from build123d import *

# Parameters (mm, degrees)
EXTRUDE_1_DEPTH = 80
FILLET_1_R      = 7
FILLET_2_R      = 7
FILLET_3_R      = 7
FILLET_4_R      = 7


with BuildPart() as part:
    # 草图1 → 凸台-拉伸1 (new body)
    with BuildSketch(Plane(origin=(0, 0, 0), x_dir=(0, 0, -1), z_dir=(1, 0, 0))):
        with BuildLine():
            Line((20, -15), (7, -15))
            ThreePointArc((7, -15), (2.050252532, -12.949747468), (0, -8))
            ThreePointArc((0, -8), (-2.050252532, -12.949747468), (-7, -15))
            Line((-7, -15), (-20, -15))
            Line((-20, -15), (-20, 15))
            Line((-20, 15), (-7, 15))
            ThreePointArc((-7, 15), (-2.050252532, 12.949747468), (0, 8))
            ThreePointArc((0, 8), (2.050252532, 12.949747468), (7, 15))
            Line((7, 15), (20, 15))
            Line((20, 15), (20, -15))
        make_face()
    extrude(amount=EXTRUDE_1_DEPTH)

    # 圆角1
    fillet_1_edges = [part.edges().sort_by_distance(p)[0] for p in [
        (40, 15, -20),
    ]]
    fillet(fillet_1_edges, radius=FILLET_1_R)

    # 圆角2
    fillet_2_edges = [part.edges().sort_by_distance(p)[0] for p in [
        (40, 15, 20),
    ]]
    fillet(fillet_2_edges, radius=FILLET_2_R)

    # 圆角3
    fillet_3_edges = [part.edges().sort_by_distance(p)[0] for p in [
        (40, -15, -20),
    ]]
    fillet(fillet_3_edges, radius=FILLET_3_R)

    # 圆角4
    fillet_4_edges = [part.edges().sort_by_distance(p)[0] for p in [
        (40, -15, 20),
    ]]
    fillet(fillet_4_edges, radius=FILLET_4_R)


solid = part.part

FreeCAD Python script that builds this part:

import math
import FreeCAD as App
import Part
import Sketcher

V = App.Vector


def edges_at(feature, points):
    """Names of the edges that pass closest to the given points."""
    edges = feature.Shape.Edges
    near = lambda p: min(range(len(edges)), key=lambda i: edges[i].distToShape(Part.Vertex(*p))[0])
    return sorted({f"Edge{near(p) + 1}" for p in points})

doc = App.newDocument("Part")
body = doc.addObject("PartDesign::Body", "Body")

# Sketch on YZ plane
sketch1 = doc.addObject("Sketcher::SketchObject", "Sketch")
body.addObject(sketch1)
sketch1.AttachmentSupport = (doc.YZ_Plane, [""])
sketch1.MapMode = "FlatFace"
sketch1.addGeometry([
    Part.LineSegment(V(-15, -7, 0), V(-15, -20, 0)),  # 0
    Part.LineSegment(V(-15, -20, 0), V(15, -20, 0)),  # 1
    Part.LineSegment(V(15, -20, 0), V(15, -7, 0)),  # 2
    Part.ArcOfCircle(Part.Circle(V(8, -7, 0), V(0, 0, 1), 7), math.radians(0), math.radians(90)),  # 3
    Part.ArcOfCircle(Part.Circle(V(8, 7, 0), V(0, 0, 1), 7), math.radians(-90), math.radians(0)),  # 4
    Part.LineSegment(V(15, 7, 0), V(15, 20, 0)),  # 5
    Part.LineSegment(V(15, 20, 0), V(-15, 20, 0)),  # 6
    Part.LineSegment(V(-15, 20, 0), V(-15, 7, 0)),  # 7
    Part.ArcOfCircle(Part.Circle(V(-8, 7, 0), V(0, 0, 1), 7), math.radians(-180), math.radians(-90)),  # 8
    Part.ArcOfCircle(Part.Circle(V(-8, -7, 0), V(0, 0, 1), 7), math.radians(90), math.radians(180)),  # 9
], False)
sketch1.addConstraint([
    Sketcher.Constraint("Coincident", 0, 2, 1, 1),
    Sketcher.Constraint("Coincident", 1, 2, 2, 1),
    Sketcher.Constraint("Tangent", 2, 2, 3, 1),
    Sketcher.Constraint("Tangent", 3, 2, 4, 1),
    Sketcher.Constraint("Tangent", 4, 2, 5, 1),
    Sketcher.Constraint("Coincident", 5, 2, 6, 1),
    Sketcher.Constraint("Coincident", 6, 2, 7, 1),
    Sketcher.Constraint("Tangent", 7, 2, 8, 1),
    Sketcher.Constraint("Tangent", 8, 2, 9, 1),
    Sketcher.Constraint("Tangent", 9, 2, 0, 1),
    Sketcher.Constraint("Vertical", 0),
    Sketcher.Constraint("Horizontal", 1),
    Sketcher.Constraint("Vertical", 2),
    Sketcher.Constraint("Vertical", 5),
    Sketcher.Constraint("Horizontal", 6),
    Sketcher.Constraint("Vertical", 7),
    Sketcher.Constraint("Equal", 3, 4),
    Sketcher.Constraint("Equal", 4, 8),
    Sketcher.Constraint("Equal", 8, 9),
    Sketcher.Constraint("Symmetric", 3, 3, 8, 3, -1, 1),
    Sketcher.Constraint("Symmetric", 0, 2, 5, 2, -1, 1),
    Sketcher.Constraint("Symmetric", 4, 3, 8, 3, -2),
    Sketcher.Constraint("Radius", 3, 7.0),
    Sketcher.Constraint("DistanceX", 1, 1, 1, 2, 30.0),
    Sketcher.Constraint("DistanceY", 0, 2, 0, 1, 13.0),
])
pad1 = doc.addObject("PartDesign::Pad", "Pad")
body.addObject(pad1)
pad1.Profile = sketch1
pad1.Length = 80
doc.recompute()

fillet = doc.addObject("PartDesign::Fillet", "Fillet")
body.addObject(fillet)
fillet.Base = (pad1, edges_at(pad1, [(40, 15, -20)]))
fillet.Radius = 7
doc.recompute()

fillet2 = doc.addObject("PartDesign::Fillet", "Fillet001")
body.addObject(fillet2)
fillet2.Base = (fillet, edges_at(fillet, [(40, 15, 20)]))
fillet2.Radius = 7
doc.recompute()

fillet3 = doc.addObject("PartDesign::Fillet", "Fillet002")
body.addObject(fillet3)
fillet3.Base = (fillet2, edges_at(fillet2, [(40, -15, -20)]))
fillet3.Radius = 7
doc.recompute()

fillet4 = doc.addObject("PartDesign::Fillet", "Fillet003")
body.addObject(fillet4)
fillet4.Base = (fillet3, edges_at(fillet3, [(40, -15, 20)]))
fillet4.Radius = 7

doc.recompute()
